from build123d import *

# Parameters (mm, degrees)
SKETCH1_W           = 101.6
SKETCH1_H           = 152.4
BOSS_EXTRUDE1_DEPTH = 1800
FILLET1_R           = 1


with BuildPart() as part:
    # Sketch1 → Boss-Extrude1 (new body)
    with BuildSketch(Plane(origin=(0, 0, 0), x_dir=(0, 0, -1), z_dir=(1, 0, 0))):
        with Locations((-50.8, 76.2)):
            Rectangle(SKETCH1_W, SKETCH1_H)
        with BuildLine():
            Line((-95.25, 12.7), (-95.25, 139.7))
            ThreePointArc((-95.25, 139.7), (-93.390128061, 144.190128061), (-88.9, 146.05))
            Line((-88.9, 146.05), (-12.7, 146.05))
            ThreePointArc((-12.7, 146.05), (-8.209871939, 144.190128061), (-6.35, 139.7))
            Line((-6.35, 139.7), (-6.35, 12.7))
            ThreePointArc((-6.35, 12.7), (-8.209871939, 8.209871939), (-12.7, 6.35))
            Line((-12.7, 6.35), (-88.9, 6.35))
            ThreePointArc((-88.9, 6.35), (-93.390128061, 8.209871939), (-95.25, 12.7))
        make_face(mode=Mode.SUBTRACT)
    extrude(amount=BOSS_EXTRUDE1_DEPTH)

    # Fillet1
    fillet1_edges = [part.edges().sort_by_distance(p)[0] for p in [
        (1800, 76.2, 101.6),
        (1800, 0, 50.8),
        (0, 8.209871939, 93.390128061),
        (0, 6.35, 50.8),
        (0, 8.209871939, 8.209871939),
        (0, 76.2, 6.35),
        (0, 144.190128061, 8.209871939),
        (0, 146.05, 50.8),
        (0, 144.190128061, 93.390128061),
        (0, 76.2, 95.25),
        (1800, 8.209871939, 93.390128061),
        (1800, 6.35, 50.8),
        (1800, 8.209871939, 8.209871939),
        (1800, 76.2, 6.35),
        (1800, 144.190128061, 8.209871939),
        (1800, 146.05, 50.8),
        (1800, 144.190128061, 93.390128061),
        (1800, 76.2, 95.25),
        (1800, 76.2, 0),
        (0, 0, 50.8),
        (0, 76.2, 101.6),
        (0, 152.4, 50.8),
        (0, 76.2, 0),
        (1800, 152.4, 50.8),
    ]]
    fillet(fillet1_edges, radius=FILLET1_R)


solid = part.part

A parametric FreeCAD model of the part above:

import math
import FreeCAD as App
import Part
import Sketcher
from FreeCAD import Vector
Q = App.Units.Quantity


def edges_at(feature, points):
    """Names of the edges that pass closest to the given points."""
    edges = feature.Shape.Edges
    near = lambda p: min(range(len(edges)), key=lambda i: edges[i].distToShape(Part.Vertex(*p))[0])
    return sorted({f"Edge{near(p) + 1}" for p in points})

doc = App.newDocument("Part")
body = doc.addObject("PartDesign::Body", "Body")

# Sketch on YZ plane
sketch1 = doc.addObject("Sketcher::SketchObject", "Sketch")
body.addObject(sketch1)
sketch1.AttachmentSupport = (doc.YZ_Plane, [""])
sketch1.MapMode = "FlatFace"
sketch1.addGeometry([
    Part.LineSegment(Vector(152.4, 101.6, 0), Vector(0, 101.6, 0)),  # 0
    Part.LineSegment(Vector(0, 101.6, 0), Vector(0, 0, 0)),  # 1
    Part.LineSegment(Vector(0, 0, 0), Vector(152.4, 0, 0)),  # 2
    Part.LineSegment(Vector(152.4, 0, 0), Vector(152.4, 101.6, 0)),  # 3
    Part.ArcOfCircle(Part.Circle(Vector(12.7, 88.9, 0), Vector(0, 0, 1), 6.35), math.radians(90), math.radians(180)),  # 4
    Part.LineSegment(Vector(12.7, 95.25, 0), Vector(139.7, 95.25, 0)),  # 5
    Part.ArcOfCircle(Part.Circle(Vector(139.7, 88.9, 0), Vector(0, 0, 1), 6.35), math.radians(0), math.radians(90)),  # 6
    Part.LineSegment(Vector(146.05, 88.9, 0), Vector(146.05, 12.7, 0)),  # 7
    Part.ArcOfCircle(Part.Circle(Vector(139.7, 12.7, 0), Vector(0, 0, 1), 6.35), math.radians(-90), math.radians(0)),  # 8
    Part.LineSegment(Vector(139.7, 6.35, 0), Vector(12.7, 6.35, 0)),  # 9
    Part.ArcOfCircle(Part.Circle(Vector(12.7, 12.7, 0), Vector(0, 0, 1), 6.35), math.radians(180), math.radians(270)),  # 10
    Part.LineSegment(Vector(6.35, 12.7, 0), Vector(6.35, 88.9, 0)),  # 11
], False)
sketch1.addConstraint([
    Sketcher.Constraint("Coincident", 0, 2, 1, 1),
    Sketcher.Constraint("Coincident", 1, 2, 2, 1),
    Sketcher.Constraint("Coincident", 2, 2, 3, 1),
    Sketcher.Constraint("Coincident", 3, 2, 0, 1),
    Sketcher.Constraint("Tangent", 4, 1, 5, 1),
    Sketcher.Constraint("Tangent", 5, 2, 6, 2),
    Sketcher.Constraint("Tangent", 6, 1, 7, 1),
    Sketcher.Constraint("Tangent", 7, 2, 8, 2),
    Sketcher.Constraint("Tangent", 8, 1, 9, 1),
    Sketcher.Constraint("Tangent", 9, 2, 10, 2),
    Sketcher.Constraint("Tangent", 10, 1, 11, 1),
    Sketcher.Constraint("Tangent", 11, 2, 4, 2),
    Sketcher.Constraint("Horizontal", 0),
    Sketcher.Constraint("Vertical", 1),
    Sketcher.Constraint("Horizontal", 2),
    Sketcher.Constraint("Vertical", 3),
    Sketcher.Constraint("Horizontal", 5),
    Sketcher.Constraint("Vertical", 7),
    Sketcher.Constraint("Horizontal", 9),
    Sketcher.Constraint("Vertical", 11),
    Sketcher.Constraint("Coincident", 1, 2, -1, 1),
    Sketcher.Constraint("Equal", 4, 6),
    Sketcher.Constraint("Equal", 6, 8),
    Sketcher.Constraint("Equal", 8, 10),
    Sketcher.Constraint("DistanceX", 0, 2, 0, 1, Q("6 in")),
    Sketcher.Constraint("DistanceX", 5, 1, 5, 2, Q("5 in")),
    Sketcher.Constraint("DistanceY", 1, 2, 1, 1, Q("4 in")),
    Sketcher.Constraint("DistanceY", 7, 2, 7, 1, Q("3 in")),
    Sketcher.Constraint("Radius", 4, Q("0.25 in")),
    Sketcher.Constraint("DistanceX", -1, 1, 4, 3, Q("0.5 in")),
    Sketcher.Constraint("DistanceY", -1, 1, 4, 3, Q("3.5 in")),
])
pad1 = doc.addObject("PartDesign::Pad", "Pad")
body.addObject(pad1)
pad1.Profile = sketch1
pad1.Length = 1800
doc.recompute()

fillet = doc.addObject("PartDesign::Fillet", "Fillet")
body.addObject(fillet)
fillet.Base = (pad1, edges_at(pad1, [
    (1800, 76.2, 101.6),
    (1800, 0, 50.8),
    (0, 8.21, 93.39),
    (0, 6.35, 50.8),
    (0, 8.21, 8.21),
    (0, 76.2, 6.35),
    (0, 144.19, 8.21),
    (0, 146.05, 50.8),
    (0, 144.19, 93.39),
    (0, 76.2, 95.25),
    (1800, 8.21, 93.39),
    (1800, 6.35, 50.8),
    (1800, 8.21, 8.21),
    (1800, 76.2, 6.35),
    (1800, 144.19, 8.21),
    (1800, 146.05, 50.8),
    (1800, 144.19, 93.39),
    (1800, 76.2, 95.25),
    (1800, 76.2, 0),
    (0, 0, 50.8),
    (0, 76.2, 101.6),
    (0, 152.4, 50.8),
    (0, 76.2, 0),
    (1800, 152.4, 50.8),
]))
fillet.Radius = 1

doc.recompute()
